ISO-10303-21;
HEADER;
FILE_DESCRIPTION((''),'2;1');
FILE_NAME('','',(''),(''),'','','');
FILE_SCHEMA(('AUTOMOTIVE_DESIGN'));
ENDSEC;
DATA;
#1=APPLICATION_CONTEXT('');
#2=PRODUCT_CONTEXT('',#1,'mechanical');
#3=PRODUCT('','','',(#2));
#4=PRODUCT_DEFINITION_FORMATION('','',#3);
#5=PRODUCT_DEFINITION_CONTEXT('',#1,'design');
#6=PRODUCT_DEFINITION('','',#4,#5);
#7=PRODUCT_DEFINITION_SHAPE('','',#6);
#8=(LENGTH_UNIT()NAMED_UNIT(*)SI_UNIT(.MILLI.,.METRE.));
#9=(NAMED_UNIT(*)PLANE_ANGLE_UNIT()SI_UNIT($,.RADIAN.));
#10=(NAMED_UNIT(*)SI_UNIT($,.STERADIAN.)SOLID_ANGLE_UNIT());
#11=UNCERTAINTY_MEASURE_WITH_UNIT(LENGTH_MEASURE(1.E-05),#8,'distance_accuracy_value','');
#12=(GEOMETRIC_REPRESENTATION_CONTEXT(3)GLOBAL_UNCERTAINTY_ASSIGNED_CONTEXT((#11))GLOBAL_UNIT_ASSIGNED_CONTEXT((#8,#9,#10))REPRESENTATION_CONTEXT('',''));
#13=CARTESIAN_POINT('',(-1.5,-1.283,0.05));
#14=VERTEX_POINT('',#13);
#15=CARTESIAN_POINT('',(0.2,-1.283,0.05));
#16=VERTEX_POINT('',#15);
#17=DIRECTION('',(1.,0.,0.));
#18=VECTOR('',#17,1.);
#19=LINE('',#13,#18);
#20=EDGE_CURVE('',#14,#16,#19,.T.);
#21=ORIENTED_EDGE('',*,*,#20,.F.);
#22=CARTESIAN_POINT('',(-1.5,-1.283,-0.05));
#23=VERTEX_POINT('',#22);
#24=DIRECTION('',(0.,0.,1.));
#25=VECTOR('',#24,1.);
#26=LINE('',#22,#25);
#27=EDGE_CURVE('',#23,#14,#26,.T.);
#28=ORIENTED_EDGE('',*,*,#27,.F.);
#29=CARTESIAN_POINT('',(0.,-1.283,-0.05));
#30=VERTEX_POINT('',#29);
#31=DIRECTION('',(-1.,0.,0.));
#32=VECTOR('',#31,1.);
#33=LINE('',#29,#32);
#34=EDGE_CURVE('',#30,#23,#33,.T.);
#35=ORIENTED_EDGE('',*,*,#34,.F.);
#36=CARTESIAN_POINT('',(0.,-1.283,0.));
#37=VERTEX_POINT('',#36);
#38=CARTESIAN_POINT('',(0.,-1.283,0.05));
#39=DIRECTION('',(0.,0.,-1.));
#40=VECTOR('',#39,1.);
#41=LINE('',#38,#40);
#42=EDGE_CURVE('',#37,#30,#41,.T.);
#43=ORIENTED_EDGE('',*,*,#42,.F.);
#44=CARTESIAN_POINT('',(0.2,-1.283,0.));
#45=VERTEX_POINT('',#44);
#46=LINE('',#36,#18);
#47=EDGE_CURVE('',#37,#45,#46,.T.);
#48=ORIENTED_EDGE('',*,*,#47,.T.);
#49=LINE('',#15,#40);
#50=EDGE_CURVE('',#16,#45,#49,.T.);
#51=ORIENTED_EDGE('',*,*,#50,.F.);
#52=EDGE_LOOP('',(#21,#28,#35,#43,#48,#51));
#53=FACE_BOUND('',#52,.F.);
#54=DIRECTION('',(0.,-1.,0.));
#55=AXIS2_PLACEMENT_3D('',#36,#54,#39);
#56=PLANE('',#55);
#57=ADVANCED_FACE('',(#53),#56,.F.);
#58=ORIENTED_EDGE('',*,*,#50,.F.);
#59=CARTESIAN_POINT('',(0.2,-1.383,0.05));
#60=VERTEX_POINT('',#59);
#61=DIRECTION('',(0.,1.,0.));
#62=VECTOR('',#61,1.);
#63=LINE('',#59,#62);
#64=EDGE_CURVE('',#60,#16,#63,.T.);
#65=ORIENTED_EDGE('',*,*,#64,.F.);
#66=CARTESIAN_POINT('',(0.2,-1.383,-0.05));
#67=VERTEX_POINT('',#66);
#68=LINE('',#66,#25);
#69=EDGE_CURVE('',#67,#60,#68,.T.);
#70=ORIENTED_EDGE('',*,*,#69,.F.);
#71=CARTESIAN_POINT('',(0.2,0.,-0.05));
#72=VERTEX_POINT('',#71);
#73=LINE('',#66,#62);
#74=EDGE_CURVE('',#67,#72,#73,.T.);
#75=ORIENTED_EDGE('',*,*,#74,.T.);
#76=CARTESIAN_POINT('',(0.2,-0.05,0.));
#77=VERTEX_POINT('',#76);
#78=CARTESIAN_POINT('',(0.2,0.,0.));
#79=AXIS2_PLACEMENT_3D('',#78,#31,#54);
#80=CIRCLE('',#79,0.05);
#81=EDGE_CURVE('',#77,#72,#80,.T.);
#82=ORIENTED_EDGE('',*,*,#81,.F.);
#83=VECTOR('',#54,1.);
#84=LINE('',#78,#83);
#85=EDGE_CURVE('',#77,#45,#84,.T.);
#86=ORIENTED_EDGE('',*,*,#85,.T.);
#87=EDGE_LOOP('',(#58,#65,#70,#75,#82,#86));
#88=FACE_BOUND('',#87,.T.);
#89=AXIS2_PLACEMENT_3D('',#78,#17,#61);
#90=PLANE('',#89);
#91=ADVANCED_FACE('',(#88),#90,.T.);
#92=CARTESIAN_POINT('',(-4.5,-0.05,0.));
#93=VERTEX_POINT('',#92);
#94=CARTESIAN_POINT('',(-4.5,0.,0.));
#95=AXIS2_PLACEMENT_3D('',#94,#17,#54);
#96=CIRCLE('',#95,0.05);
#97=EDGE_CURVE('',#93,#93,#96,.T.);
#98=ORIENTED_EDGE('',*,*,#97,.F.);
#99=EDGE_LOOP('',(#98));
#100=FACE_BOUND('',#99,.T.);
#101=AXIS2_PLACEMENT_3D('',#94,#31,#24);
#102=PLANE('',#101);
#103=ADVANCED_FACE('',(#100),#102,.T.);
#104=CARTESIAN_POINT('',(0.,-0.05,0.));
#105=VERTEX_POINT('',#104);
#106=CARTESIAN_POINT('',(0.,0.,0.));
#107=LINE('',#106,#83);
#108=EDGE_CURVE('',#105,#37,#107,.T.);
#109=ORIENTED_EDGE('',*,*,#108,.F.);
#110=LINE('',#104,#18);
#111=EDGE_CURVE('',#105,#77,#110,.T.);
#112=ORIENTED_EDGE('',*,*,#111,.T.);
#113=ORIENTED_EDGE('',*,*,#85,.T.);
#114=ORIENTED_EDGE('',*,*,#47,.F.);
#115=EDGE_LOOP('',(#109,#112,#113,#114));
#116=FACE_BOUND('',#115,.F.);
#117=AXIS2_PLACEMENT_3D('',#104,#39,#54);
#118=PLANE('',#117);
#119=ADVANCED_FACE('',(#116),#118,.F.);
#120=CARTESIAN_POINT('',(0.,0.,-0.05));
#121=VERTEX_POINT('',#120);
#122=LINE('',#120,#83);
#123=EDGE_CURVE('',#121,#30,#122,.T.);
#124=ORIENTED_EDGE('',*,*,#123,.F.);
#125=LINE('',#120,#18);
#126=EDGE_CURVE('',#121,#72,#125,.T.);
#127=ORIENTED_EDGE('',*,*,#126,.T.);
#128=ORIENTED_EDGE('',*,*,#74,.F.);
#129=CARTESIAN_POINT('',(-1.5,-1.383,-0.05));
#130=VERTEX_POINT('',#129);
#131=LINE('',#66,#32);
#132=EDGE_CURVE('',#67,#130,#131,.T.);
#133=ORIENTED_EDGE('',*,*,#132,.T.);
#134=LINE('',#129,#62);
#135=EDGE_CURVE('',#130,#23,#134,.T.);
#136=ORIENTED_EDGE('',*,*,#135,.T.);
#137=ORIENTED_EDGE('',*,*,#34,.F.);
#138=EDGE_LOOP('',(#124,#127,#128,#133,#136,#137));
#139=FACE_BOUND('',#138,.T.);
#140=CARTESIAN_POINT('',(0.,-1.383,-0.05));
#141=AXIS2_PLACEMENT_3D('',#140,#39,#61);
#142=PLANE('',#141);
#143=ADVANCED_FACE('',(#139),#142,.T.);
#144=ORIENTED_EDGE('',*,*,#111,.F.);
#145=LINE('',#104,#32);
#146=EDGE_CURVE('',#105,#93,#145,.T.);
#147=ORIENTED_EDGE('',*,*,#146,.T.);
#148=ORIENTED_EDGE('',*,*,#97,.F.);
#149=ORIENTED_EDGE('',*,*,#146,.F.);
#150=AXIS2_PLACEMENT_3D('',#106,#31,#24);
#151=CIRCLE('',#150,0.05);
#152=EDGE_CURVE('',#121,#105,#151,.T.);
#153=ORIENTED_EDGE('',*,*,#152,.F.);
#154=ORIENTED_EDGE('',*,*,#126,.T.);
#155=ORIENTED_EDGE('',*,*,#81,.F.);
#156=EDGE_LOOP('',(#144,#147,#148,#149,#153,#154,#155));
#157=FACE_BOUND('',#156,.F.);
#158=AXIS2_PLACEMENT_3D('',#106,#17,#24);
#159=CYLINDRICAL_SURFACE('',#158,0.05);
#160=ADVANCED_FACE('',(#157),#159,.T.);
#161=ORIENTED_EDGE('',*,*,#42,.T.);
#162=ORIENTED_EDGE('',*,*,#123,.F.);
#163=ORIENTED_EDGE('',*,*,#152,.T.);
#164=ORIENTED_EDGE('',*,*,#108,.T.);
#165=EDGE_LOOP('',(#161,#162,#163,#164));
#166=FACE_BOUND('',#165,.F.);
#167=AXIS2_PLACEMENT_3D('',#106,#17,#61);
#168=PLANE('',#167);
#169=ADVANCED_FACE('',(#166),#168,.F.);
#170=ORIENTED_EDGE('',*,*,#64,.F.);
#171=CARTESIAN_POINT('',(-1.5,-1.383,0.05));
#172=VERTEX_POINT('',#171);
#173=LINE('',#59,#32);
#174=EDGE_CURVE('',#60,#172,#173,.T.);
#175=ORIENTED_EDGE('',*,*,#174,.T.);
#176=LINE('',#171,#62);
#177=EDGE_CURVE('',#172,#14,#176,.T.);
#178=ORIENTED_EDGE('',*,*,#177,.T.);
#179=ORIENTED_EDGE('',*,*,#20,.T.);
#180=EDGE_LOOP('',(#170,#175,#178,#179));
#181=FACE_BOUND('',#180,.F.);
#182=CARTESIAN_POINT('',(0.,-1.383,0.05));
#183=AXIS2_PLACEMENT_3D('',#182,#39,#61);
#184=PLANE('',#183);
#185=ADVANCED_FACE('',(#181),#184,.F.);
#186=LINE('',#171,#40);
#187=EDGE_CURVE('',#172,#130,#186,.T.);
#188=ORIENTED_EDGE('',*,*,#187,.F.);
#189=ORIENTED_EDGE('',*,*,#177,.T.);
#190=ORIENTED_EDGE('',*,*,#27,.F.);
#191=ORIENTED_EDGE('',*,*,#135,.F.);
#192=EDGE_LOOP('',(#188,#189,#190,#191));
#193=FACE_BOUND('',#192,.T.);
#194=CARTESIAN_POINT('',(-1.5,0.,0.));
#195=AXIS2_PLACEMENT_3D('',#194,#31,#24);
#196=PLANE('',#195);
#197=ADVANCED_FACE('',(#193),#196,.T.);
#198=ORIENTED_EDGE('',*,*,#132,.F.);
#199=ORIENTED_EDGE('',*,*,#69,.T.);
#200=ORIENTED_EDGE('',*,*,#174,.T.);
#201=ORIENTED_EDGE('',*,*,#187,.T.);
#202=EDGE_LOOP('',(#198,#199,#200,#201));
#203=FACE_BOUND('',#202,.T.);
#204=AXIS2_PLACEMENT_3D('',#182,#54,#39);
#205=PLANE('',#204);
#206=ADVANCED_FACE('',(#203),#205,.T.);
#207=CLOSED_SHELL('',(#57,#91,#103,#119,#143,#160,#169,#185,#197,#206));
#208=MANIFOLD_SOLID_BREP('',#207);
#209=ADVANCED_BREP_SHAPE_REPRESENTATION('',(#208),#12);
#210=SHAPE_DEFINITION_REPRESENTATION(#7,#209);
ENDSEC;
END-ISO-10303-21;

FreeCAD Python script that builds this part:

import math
import FreeCAD as App
import Part
import Sketcher


def add_polygon(sketch, points):
    """Adds a closed chain of lines whose ends are joined by coincident constraints."""
    first, n = sketch.GeometryCount, len(points)
    for a, b in zip(points, points[1:] + points[:1]):
        sketch.addGeometry(Part.LineSegment(App.Vector(*a, 0), App.Vector(*b, 0)), False)
    for i in range(n):
        sketch.addConstraint(Sketcher.Constraint("Coincident", first + i, 2, first + (i + 1) % n, 1))

doc = App.newDocument("Part")
body = doc.addObject("PartDesign::Body", "Body")

# Sketch on YZ plane
sketch1 = body.newObject("Sketcher::SketchObject", "Sketch")
sketch1.AttachmentSupport = (doc.getObject("YZ_Plane"), [""])
sketch1.MapMode = "FlatFace"
sketch1.addGeometry([
    Part.LineSegment(App.Vector(-0.05, 0, 0), App.Vector(-1.28, 0, 0)),  # 0
    Part.LineSegment(App.Vector(-1.28, 0, 0), App.Vector(-1.28, 0.05, 0)),  # 1
    Part.LineSegment(App.Vector(-1.28, 0.05, 0), App.Vector(-1.38, 0.05, 0)),  # 2
    Part.LineSegment(App.Vector(-1.38, 0.05, 0), App.Vector(-1.38, -0.05, 0)),  # 3
    Part.LineSegment(App.Vector(-1.38, -0.05, 0), App.Vector(0, -0.05, 0)),  # 4
    Part.ArcOfCircle(Part.Circle(App.Vector(0, 0, 0), App.Vector(0, 0, 1), 0.05), math.radians(-90), math.radians(180)),  # 5
], False)
sketch1.addConstraint([
    Sketcher.Constraint("Coincident", 0, 2, 1, 1),
    Sketcher.Constraint("Coincident", 1, 2, 2, 1),
    Sketcher.Constraint("Coincident", 2, 2, 3, 1),
    Sketcher.Constraint("Coincident", 3, 2, 4, 1),
    Sketcher.Constraint("Tangent", 4, 2, 5, 1),
    Sketcher.Constraint("Coincident", 5, 2, 0, 1),
    Sketcher.Constraint("Horizontal", 0),
    Sketcher.Constraint("Vertical", 1),
    Sketcher.Constraint("Horizontal", 2),
    Sketcher.Constraint("Vertical", 3),
    Sketcher.Constraint("Horizontal", 4),
    Sketcher.Constraint("Coincident", 5, 3, -1, 1),
    Sketcher.Constraint("PointOnObject", 0, 2, -1),
    Sketcher.Constraint("Equal", 2, 3),
    Sketcher.Constraint("Radius", 5, 0.05),
    Sketcher.Constraint("DistanceX", 2, 2, 2, 1, 0.1),
    Sketcher.Constraint("DistanceX", 2, 2, 5, 2, 1.333),
])
pad1 = body.newObject("PartDesign::Pad", "Pad")
pad1.Profile = sketch1
pad1.Length = 0.2

# Sketch on YZ plane
sketch2 = body.newObject("Sketcher::SketchObject", "Sketch001")
sketch2.AttachmentSupport = (doc.getObject("YZ_Plane"), [""])
sketch2.MapMode = "FlatFace"
sketch2.addGeometry(Part.Circle(App.Vector(0, 0, 0), App.Vector(0, 0, 1), 0.05), False)
sketch2.addConstraint([
    Sketcher.Constraint("Coincident", 0, 3, -1, 1),
    Sketcher.Constraint("Diameter", 0, 0.1),
])
pad2 = body.newObject("PartDesign::Pad", "Pad001")
pad2.Profile = sketch2
pad2.Length = 4.5
pad2.Reversed = True

# Sketch on YZ plane
sketch3 = body.newObject("Sketcher::SketchObject", "Sketch002")
sketch3.AttachmentSupport = (doc.getObject("YZ_Plane"), [""])
sketch3.MapMode = "FlatFace"
add_polygon(sketch3, [(-1.28, -0.05), (-1.38, -0.05), (-1.38, 0.05), (-1.28, 0.05)])  # lines 0-3
sketch3.addConstraint([
    Sketcher.Constraint("Horizontal", 0),
    Sketcher.Constraint("Vertical", 1),
    Sketcher.Constraint("Horizontal", 2),
    Sketcher.Constraint("Vertical", 3),
    Sketcher.Constraint("Equal", 2, 1),
    Sketcher.Constraint("DistanceX", 0, 2, 0, 1, 0.1),
    Sketcher.Constraint("DistanceY", 0, 2, -1, 1, 0.05),
    Sketcher.Constraint("DistanceX", 0, 2, -1, 1, 1.383),
])
pad3 = body.newObject("PartDesign::Pad", "Pad002")
pad3.Profile = sketch3
pad3.Length = 1.5
pad3.Reversed = True

doc.recompute()
